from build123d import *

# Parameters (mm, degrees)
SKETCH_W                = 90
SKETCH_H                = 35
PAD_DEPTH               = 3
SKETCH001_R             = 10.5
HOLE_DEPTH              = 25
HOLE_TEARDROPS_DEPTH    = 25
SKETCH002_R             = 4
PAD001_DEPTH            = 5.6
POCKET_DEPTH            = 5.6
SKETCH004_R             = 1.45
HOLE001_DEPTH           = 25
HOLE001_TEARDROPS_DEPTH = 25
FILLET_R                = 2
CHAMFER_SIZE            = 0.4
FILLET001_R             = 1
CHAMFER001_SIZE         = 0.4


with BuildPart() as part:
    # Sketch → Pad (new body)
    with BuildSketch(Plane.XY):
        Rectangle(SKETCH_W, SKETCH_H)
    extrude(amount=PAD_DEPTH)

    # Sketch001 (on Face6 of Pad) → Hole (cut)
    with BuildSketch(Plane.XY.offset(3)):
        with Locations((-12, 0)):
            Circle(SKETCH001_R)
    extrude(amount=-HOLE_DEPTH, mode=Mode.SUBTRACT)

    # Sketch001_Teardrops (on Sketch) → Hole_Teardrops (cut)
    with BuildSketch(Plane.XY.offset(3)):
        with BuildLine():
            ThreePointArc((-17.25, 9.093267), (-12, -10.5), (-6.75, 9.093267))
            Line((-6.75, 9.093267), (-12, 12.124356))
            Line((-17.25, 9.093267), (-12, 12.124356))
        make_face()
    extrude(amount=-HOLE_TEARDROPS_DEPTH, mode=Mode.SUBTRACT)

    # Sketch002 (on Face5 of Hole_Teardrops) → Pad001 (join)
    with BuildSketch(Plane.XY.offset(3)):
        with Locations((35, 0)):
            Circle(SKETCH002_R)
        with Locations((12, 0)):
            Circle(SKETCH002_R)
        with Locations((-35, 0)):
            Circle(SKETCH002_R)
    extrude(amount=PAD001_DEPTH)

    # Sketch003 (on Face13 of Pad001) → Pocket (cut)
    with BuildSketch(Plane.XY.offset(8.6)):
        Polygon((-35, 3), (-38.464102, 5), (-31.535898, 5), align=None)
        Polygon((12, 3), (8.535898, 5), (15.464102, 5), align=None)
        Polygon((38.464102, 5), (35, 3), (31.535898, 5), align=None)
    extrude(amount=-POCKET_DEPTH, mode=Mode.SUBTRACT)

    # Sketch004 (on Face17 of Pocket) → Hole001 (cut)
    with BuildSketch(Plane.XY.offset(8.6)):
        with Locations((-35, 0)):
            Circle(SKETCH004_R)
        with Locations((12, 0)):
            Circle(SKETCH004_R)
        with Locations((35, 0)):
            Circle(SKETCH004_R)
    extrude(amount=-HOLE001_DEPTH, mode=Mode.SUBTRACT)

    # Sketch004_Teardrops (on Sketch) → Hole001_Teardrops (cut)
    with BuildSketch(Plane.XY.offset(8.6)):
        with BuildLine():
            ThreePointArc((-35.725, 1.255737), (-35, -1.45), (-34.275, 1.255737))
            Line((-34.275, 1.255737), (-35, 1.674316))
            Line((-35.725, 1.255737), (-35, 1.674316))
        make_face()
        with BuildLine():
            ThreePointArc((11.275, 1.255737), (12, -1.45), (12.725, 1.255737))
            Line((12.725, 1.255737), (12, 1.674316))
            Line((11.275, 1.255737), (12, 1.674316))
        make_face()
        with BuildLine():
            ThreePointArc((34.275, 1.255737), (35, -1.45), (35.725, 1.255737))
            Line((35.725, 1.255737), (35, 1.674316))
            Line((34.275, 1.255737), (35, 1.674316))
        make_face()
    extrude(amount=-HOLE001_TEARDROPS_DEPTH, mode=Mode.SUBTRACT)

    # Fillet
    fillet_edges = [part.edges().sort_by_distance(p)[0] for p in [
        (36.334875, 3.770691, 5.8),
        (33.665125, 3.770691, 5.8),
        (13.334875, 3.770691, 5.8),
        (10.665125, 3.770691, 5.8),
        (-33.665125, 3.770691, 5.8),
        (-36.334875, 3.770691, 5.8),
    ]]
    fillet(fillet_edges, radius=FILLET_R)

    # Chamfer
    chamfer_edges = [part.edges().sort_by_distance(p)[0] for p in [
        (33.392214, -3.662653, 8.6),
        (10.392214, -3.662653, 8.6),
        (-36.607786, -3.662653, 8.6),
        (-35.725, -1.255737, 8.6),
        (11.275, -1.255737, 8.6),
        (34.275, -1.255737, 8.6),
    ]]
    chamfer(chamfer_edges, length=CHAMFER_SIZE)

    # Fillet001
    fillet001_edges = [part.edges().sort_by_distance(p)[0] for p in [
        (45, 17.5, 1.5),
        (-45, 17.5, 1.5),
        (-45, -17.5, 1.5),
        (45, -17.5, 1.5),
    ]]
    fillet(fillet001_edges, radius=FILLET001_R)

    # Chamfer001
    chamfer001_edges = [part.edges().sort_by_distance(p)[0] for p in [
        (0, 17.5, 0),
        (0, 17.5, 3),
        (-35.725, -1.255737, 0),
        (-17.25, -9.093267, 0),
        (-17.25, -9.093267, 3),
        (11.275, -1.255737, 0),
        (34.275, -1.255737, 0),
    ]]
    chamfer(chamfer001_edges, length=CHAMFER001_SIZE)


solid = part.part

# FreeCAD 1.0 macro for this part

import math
import FreeCAD as App
import Part
import Sketcher

V = App.Vector
Q = App.Units.Quantity


def edges_at(feature, points):
    """Names of the edges that pass closest to the given points."""
    edges = feature.Shape.Edges
    near = lambda p: min(range(len(edges)), key=lambda i: edges[i].distToShape(Part.Vertex(*p))[0])
    return sorted({f"Edge{near(p) + 1}" for p in points})


def add_polygon(sketch, points):
    """Adds a closed chain of lines whose ends are joined by coincident constraints."""
    first, n = sketch.GeometryCount, len(points)
    for a, b in zip(points, points[1:] + points[:1]):
        sketch.addGeometry(Part.LineSegment(App.Vector(*a, 0), App.Vector(*b, 0)), False)
    for i in range(n):
        sketch.addConstraint(Sketcher.Constraint("Coincident", first + i, 2, first + (i + 1) % n, 1))

doc = App.newDocument("Part")
body = doc.addObject("PartDesign::Body", "Body")

# Sketch on XY plane
sketch1 = doc.addObject("Sketcher::SketchObject", "Sketch")
body.addObject(sketch1)
sketch1.AttachmentSupport = (doc.XY_Plane, [""])
sketch1.MapMode = "FlatFace"
add_polygon(sketch1, [(-45, 18), (-45, -18), (45, -18), (45, 18)])  # lines 0-3
sketch1.addConstraint([
    Sketcher.Constraint("Vertical", 0),
    Sketcher.Constraint("Horizontal", 1),
    Sketcher.Constraint("Vertical", 2),
    Sketcher.Constraint("Horizontal", 3),
    Sketcher.Constraint("Symmetric", 0, 2, 2, 2, -1, 1),
    Sketcher.Constraint("DistanceX", 1, 1, 1, 2, Q("90 mm")),
    Sketcher.Constraint("DistanceY", 0, 2, 0, 1, Q("35 mm")),
])
pad1 = doc.addObject("PartDesign::Pad", "Pad")
body.addObject(pad1)
pad1.Profile = sketch1
pad1.Length = 3

# Sketch on XY plane
sketch2 = doc.addObject("Sketcher::SketchObject", "Sketch001")
body.addObject(sketch2)
sketch2.AttachmentSupport = (doc.XY_Plane, [""])
sketch2.MapMode = "FlatFace"
sketch2.AttachmentOffset = App.Placement(V(0, 0, 3), App.Rotation())
sketch2.addGeometry(Part.Circle(V(-12, 0, 0), V(0, 0, 1), 10), False)
sketch2.addConstraint([
    Sketcher.Constraint("PointOnObject", 0, 3, -1),
    Sketcher.Constraint("Diameter", 0, Q("21 mm")),
    Sketcher.Constraint("DistanceX", 0, 3, -1, 1, Q("12 mm")),
])
pocket1 = doc.addObject("PartDesign::Pocket", "Pocket")
body.addObject(pocket1)
pocket1.Profile = sketch2
pocket1.Length = 25

# Sketch on XY plane
sketch3 = doc.addObject("Sketcher::SketchObject", "Sketch002")
body.addObject(sketch3)
sketch3.AttachmentSupport = (doc.XY_Plane, [""])
sketch3.MapMode = "FlatFace"
sketch3.AttachmentOffset = App.Placement(V(0, 0, 3), App.Rotation())
sketch3.addGeometry([
    Part.ArcOfCircle(Part.Circle(V(-12, 0, 0), V(0, 0, 1), 11), math.radians(120), math.radians(420)),
    Part.LineSegment(V(-7, 9, 0), V(-12, 12, 0)),
    Part.LineSegment(V(-12, 12, 0), V(-17, 9, 0)),
], False)
sketch3.addConstraint([
    Sketcher.Constraint("Tangent", 0, 2, 1, 1),
    Sketcher.Constraint("Coincident", 1, 2, 2, 1),
    Sketcher.Constraint("Tangent", 2, 2, 0, 1),
    Sketcher.Constraint("PointOnObject", 0, 3, -1),
    Sketcher.Constraint("Horizontal", 0, 2, 2, 2),
    Sketcher.Constraint("Radius", 0, Q("10.5 mm")),
    Sketcher.Constraint("Angle", 1, Q("149.999999 deg")),
    Sketcher.Constraint("DistanceX", 0, 3, -1, 1, Q("12 mm")),
])
pocket2 = doc.addObject("PartDesign::Pocket", "Pocket001")
body.addObject(pocket2)
pocket2.Profile = sketch3
pocket2.Length = 25

# Sketch on XY plane
sketch4 = doc.addObject("Sketcher::SketchObject", "Sketch003")
body.addObject(sketch4)
sketch4.AttachmentSupport = (doc.XY_Plane, [""])
sketch4.MapMode = "FlatFace"
sketch4.AttachmentOffset = App.Placement(V(0, 0, 3), App.Rotation())
sketch4.addGeometry([
    Part.Circle(V(35, 0, 0), V(0, 0, 1), 4),
    Part.Circle(V(12, 0, 0), V(0, 0, 1), 4),
    Part.Circle(V(-35, 0, 0), V(0, 0, 1), 4),
], False)
sketch4.addConstraint([
    Sketcher.Constraint("Equal", 0, 1),
    Sketcher.Constraint("Equal", 1, 2),
    Sketcher.Constraint("Symmetric", 0, 3, 2, 3, -1, 1),
    Sketcher.Constraint("PointOnObject", 0, 3, -1),
    Sketcher.Constraint("PointOnObject", 1, 3, -1),
    Sketcher.Constraint("Diameter", 0, Q("8 mm")),
    Sketcher.Constraint("DistanceX", -1, 1, 0, 3, Q("35 mm")),
    Sketcher.Constraint("DistanceX", -1, 1, 1, 3, Q("12 mm")),
])
pad2 = doc.addObject("PartDesign::Pad", "Pad001")
body.addObject(pad2)
pad2.Profile = sketch4
pad2.Length = 5.6

# Sketch on XY plane
sketch5 = doc.addObject("Sketcher::SketchObject", "Sketch004")
body.addObject(sketch5)
sketch5.AttachmentSupport = (doc.XY_Plane, [""])
sketch5.MapMode = "FlatFace"
sketch5.AttachmentOffset = App.Placement(V(0, 0, 8.6), App.Rotation())
add_polygon(sketch5, [(-38.5, 5), (-35, 3), (-31.5, 5)])  # lines 0-2
add_polygon(sketch5, [(8.5, 5), (12, 3), (15.5, 5)])  # lines 3-5
add_polygon(sketch5, [(35, 3), (38.5, 5), (31.5, 5)])  # lines 6-8
sketch5.addConstraint([
    Sketcher.Constraint("Horizontal", 2),
    Sketcher.Constraint("Horizontal", 5),
    Sketcher.Constraint("Horizontal", 7),
    Sketcher.Constraint("Symmetric", 2, 2, 6, 2, -2),
    Sketcher.Constraint("Symmetric", 0, 2, 8, 2, -2),
    Sketcher.Constraint("Parallel", 0, 3),
    Sketcher.Constraint("Parallel", 1, 4),
    Sketcher.Constraint("Parallel", 4, 6),
    Sketcher.Constraint("Parallel", 3, 8),
    Sketcher.Constraint("Horizontal", 0, 2, 3, 2),
    Sketcher.Constraint("Horizontal", 2, 2, 4, 2),
    Sketcher.Constraint("Angle", 0, Q("-29.999997 deg")),
    Sketcher.Constraint("Distance", 0, Q("4 mm")),
    Sketcher.Constraint("DistanceX", 0, 2, -1, 1, Q("35 mm")),
    Sketcher.Constraint("DistanceY", -1, 1, 0, 2, Q("3 mm")),
    Sketcher.Constraint("DistanceX", -1, 1, 3, 2, Q("12 mm")),
])
pocket3 = doc.addObject("PartDesign::Pocket", "Pocket002")
body.addObject(pocket3)
pocket3.Profile = sketch5
pocket3.Length = 5.6

# Sketch on XY plane
sketch6 = doc.addObject("Sketcher::SketchObject", "Sketch005")
body.addObject(sketch6)
sketch6.AttachmentSupport = (doc.XY_Plane, [""])
sketch6.MapMode = "FlatFace"
sketch6.AttachmentOffset = App.Placement(V(0, 0, 8.6), App.Rotation())
sketch6.addGeometry([
    Part.Circle(V(-35, 0, 0), V(0, 0, 1), 1.4),
    Part.Circle(V(12, 0, 0), V(0, 0, 1), 1.4),
    Part.Circle(V(35, 0, 0), V(0, 0, 1), 1.4),
], False)
sketch6.addConstraint([
    Sketcher.Constraint("Equal", 0, 1),
    Sketcher.Constraint("Equal", 1, 2),
    Sketcher.Constraint("Symmetric", 0, 3, 2, 3, -1, 1),
    Sketcher.Constraint("PointOnObject", 0, 3, -1),
    Sketcher.Constraint("PointOnObject", 1, 3, -1),
    Sketcher.Constraint("Diameter", 0, Q("2.9 mm")),
    Sketcher.Constraint("DistanceX", 0, 3, -1, 1, Q("35 mm")),
    Sketcher.Constraint("DistanceX", -1, 1, 1, 3, Q("12 mm")),
])
pocket4 = doc.addObject("PartDesign::Pocket", "Pocket003")
body.addObject(pocket4)
pocket4.Profile = sketch6
pocket4.Length = 25

# Sketch on XY plane
sketch7 = doc.addObject("Sketcher::SketchObject", "Sketch006")
body.addObject(sketch7)
sketch7.AttachmentSupport = (doc.XY_Plane, [""])
sketch7.MapMode = "FlatFace"
sketch7.AttachmentOffset = App.Placement(V(0, 0, 8.6), App.Rotation())
sketch7.addGeometry([
    Part.ArcOfCircle(Part.Circle(V(-35, 0, 0), V(0, 0, 1), 1.5), math.radians(120), math.radians(420)),  # 0
    Part.LineSegment(V(-34.3, 1.3, 0), V(-35, 1.7, 0)),  # 1
    Part.LineSegment(V(-35, 1.7, 0), V(-35.7, 1.3, 0)),  # 2
    Part.ArcOfCircle(Part.Circle(V(12, 0, 0), V(0, 0, 1), 1.5), math.radians(120), math.radians(420)),  # 3
    Part.LineSegment(V(12.7, 1.3, 0), V(12, 1.7, 0)),  # 4
    Part.LineSegment(V(12, 1.7, 0), V(11.3, 1.3, 0)),  # 5
    Part.ArcOfCircle(Part.Circle(V(35, 0, 0), V(0, 0, 1), 1.5), math.radians(120), math.radians(420)),  # 6
    Part.LineSegment(V(35.7, 1.3, 0), V(35, 1.7, 0)),  # 7
    Part.LineSegment(V(35, 1.7, 0), V(34.3, 1.3, 0)),  # 8
], False)
sketch7.addConstraint([
    Sketcher.Constraint("Tangent", 0, 2, 1, 1),
    Sketcher.Constraint("Coincident", 1, 2, 2, 1),
    Sketcher.Constraint("Tangent", 2, 2, 0, 1),
    Sketcher.Constraint("Tangent", 3, 2, 4, 1),
    Sketcher.Constraint("Coincident", 4, 2, 5, 1),
    Sketcher.Constraint("Tangent", 5, 2, 3, 1),
    Sketcher.Constraint("Tangent", 6, 2, 7, 1),
    Sketcher.Constraint("Coincident", 7, 2, 8, 1),
    Sketcher.Constraint("Tangent", 8, 2, 6, 1),
    Sketcher.Constraint("Equal", 0, 3),
    Sketcher.Constraint("Equal", 3, 6),
    Sketcher.Constraint("Symmetric", 0, 3, 6, 3, -1, 1),
    Sketcher.Constraint("Symmetric", 2, 2, 6, 2, -2),
    Sketcher.Constraint("PointOnObject", 3, 3, -1),
    Sketcher.Constraint("Parallel", 1, 4),
    Sketcher.Constraint("Parallel", 2, 5),
    Sketcher.Constraint("Parallel", 4, 7),
    Sketcher.Constraint("Parallel", 5, 8),
    Sketcher.Constraint("Angle", 1, Q("149.999997 deg")),
    Sketcher.Constraint("Radius", 0, Q("1.45 mm")),
    Sketcher.Constraint("DistanceX", 0, 3, -1, 1, Q("35 mm")),
    Sketcher.Constraint("DistanceX", -1, 1, 3, 3, Q("12 mm")),
])
pocket5 = doc.addObject("PartDesign::Pocket", "Pocket004")
body.addObject(pocket5)
pocket5.Profile = sketch7
pocket5.Length = 25
doc.recompute()

fillet = doc.addObject("PartDesign::Fillet", "Fillet")
body.addObject(fillet)
fillet.Base = (pocket5, edges_at(pocket5, [
    (36.335, 3.771, 5.8),
    (33.665, 3.771, 5.8),
    (13.335, 3.771, 5.8),
    (10.665, 3.771, 5.8),
    (-33.665, 3.771, 5.8),
    (-36.335, 3.771, 5.8),
]))
fillet.Radius = 2
doc.recompute()

chamfer = doc.addObject("PartDesign::Chamfer", "Chamfer")
body.addObject(chamfer)
chamfer.Base = (fillet, edges_at(fillet, [
    (35, -4, 8.6),
    (12, -4, 8.6),
    (-35, -4, 8.6),
    (-35, -1.45, 8.6),
    (12, -1.45, 8.6),
    (35, -1.45, 8.6),
]))
chamfer.Size = 0.4
doc.recompute()

fillet2 = doc.addObject("PartDesign::Fillet", "Fillet001")
body.addObject(fillet2)
fillet2.Base = (chamfer, edges_at(chamfer, [
    (45, 17.5, 1.5),
    (-45, 17.5, 1.5),
    (-45, -17.5, 1.5),
    (45, -17.5, 1.5),
]))
fillet2.Radius = 1
doc.recompute()

chamfer2 = doc.addObject("PartDesign::Chamfer", "Chamfer001")
body.addObject(chamfer2)
chamfer2.Base = (fillet2, edges_at(fillet2, [
    (0, 17.5, 0),
    (0, 17.5, 3),
    (-35, -1.45, 0),
    (-12, -10.5, 0),
    (-12, -10.5, 3),
    (12, -1.45, 0),
    (35, -1.45, 0),
]))
chamfer2.Size = 0.4

doc.recompute()
